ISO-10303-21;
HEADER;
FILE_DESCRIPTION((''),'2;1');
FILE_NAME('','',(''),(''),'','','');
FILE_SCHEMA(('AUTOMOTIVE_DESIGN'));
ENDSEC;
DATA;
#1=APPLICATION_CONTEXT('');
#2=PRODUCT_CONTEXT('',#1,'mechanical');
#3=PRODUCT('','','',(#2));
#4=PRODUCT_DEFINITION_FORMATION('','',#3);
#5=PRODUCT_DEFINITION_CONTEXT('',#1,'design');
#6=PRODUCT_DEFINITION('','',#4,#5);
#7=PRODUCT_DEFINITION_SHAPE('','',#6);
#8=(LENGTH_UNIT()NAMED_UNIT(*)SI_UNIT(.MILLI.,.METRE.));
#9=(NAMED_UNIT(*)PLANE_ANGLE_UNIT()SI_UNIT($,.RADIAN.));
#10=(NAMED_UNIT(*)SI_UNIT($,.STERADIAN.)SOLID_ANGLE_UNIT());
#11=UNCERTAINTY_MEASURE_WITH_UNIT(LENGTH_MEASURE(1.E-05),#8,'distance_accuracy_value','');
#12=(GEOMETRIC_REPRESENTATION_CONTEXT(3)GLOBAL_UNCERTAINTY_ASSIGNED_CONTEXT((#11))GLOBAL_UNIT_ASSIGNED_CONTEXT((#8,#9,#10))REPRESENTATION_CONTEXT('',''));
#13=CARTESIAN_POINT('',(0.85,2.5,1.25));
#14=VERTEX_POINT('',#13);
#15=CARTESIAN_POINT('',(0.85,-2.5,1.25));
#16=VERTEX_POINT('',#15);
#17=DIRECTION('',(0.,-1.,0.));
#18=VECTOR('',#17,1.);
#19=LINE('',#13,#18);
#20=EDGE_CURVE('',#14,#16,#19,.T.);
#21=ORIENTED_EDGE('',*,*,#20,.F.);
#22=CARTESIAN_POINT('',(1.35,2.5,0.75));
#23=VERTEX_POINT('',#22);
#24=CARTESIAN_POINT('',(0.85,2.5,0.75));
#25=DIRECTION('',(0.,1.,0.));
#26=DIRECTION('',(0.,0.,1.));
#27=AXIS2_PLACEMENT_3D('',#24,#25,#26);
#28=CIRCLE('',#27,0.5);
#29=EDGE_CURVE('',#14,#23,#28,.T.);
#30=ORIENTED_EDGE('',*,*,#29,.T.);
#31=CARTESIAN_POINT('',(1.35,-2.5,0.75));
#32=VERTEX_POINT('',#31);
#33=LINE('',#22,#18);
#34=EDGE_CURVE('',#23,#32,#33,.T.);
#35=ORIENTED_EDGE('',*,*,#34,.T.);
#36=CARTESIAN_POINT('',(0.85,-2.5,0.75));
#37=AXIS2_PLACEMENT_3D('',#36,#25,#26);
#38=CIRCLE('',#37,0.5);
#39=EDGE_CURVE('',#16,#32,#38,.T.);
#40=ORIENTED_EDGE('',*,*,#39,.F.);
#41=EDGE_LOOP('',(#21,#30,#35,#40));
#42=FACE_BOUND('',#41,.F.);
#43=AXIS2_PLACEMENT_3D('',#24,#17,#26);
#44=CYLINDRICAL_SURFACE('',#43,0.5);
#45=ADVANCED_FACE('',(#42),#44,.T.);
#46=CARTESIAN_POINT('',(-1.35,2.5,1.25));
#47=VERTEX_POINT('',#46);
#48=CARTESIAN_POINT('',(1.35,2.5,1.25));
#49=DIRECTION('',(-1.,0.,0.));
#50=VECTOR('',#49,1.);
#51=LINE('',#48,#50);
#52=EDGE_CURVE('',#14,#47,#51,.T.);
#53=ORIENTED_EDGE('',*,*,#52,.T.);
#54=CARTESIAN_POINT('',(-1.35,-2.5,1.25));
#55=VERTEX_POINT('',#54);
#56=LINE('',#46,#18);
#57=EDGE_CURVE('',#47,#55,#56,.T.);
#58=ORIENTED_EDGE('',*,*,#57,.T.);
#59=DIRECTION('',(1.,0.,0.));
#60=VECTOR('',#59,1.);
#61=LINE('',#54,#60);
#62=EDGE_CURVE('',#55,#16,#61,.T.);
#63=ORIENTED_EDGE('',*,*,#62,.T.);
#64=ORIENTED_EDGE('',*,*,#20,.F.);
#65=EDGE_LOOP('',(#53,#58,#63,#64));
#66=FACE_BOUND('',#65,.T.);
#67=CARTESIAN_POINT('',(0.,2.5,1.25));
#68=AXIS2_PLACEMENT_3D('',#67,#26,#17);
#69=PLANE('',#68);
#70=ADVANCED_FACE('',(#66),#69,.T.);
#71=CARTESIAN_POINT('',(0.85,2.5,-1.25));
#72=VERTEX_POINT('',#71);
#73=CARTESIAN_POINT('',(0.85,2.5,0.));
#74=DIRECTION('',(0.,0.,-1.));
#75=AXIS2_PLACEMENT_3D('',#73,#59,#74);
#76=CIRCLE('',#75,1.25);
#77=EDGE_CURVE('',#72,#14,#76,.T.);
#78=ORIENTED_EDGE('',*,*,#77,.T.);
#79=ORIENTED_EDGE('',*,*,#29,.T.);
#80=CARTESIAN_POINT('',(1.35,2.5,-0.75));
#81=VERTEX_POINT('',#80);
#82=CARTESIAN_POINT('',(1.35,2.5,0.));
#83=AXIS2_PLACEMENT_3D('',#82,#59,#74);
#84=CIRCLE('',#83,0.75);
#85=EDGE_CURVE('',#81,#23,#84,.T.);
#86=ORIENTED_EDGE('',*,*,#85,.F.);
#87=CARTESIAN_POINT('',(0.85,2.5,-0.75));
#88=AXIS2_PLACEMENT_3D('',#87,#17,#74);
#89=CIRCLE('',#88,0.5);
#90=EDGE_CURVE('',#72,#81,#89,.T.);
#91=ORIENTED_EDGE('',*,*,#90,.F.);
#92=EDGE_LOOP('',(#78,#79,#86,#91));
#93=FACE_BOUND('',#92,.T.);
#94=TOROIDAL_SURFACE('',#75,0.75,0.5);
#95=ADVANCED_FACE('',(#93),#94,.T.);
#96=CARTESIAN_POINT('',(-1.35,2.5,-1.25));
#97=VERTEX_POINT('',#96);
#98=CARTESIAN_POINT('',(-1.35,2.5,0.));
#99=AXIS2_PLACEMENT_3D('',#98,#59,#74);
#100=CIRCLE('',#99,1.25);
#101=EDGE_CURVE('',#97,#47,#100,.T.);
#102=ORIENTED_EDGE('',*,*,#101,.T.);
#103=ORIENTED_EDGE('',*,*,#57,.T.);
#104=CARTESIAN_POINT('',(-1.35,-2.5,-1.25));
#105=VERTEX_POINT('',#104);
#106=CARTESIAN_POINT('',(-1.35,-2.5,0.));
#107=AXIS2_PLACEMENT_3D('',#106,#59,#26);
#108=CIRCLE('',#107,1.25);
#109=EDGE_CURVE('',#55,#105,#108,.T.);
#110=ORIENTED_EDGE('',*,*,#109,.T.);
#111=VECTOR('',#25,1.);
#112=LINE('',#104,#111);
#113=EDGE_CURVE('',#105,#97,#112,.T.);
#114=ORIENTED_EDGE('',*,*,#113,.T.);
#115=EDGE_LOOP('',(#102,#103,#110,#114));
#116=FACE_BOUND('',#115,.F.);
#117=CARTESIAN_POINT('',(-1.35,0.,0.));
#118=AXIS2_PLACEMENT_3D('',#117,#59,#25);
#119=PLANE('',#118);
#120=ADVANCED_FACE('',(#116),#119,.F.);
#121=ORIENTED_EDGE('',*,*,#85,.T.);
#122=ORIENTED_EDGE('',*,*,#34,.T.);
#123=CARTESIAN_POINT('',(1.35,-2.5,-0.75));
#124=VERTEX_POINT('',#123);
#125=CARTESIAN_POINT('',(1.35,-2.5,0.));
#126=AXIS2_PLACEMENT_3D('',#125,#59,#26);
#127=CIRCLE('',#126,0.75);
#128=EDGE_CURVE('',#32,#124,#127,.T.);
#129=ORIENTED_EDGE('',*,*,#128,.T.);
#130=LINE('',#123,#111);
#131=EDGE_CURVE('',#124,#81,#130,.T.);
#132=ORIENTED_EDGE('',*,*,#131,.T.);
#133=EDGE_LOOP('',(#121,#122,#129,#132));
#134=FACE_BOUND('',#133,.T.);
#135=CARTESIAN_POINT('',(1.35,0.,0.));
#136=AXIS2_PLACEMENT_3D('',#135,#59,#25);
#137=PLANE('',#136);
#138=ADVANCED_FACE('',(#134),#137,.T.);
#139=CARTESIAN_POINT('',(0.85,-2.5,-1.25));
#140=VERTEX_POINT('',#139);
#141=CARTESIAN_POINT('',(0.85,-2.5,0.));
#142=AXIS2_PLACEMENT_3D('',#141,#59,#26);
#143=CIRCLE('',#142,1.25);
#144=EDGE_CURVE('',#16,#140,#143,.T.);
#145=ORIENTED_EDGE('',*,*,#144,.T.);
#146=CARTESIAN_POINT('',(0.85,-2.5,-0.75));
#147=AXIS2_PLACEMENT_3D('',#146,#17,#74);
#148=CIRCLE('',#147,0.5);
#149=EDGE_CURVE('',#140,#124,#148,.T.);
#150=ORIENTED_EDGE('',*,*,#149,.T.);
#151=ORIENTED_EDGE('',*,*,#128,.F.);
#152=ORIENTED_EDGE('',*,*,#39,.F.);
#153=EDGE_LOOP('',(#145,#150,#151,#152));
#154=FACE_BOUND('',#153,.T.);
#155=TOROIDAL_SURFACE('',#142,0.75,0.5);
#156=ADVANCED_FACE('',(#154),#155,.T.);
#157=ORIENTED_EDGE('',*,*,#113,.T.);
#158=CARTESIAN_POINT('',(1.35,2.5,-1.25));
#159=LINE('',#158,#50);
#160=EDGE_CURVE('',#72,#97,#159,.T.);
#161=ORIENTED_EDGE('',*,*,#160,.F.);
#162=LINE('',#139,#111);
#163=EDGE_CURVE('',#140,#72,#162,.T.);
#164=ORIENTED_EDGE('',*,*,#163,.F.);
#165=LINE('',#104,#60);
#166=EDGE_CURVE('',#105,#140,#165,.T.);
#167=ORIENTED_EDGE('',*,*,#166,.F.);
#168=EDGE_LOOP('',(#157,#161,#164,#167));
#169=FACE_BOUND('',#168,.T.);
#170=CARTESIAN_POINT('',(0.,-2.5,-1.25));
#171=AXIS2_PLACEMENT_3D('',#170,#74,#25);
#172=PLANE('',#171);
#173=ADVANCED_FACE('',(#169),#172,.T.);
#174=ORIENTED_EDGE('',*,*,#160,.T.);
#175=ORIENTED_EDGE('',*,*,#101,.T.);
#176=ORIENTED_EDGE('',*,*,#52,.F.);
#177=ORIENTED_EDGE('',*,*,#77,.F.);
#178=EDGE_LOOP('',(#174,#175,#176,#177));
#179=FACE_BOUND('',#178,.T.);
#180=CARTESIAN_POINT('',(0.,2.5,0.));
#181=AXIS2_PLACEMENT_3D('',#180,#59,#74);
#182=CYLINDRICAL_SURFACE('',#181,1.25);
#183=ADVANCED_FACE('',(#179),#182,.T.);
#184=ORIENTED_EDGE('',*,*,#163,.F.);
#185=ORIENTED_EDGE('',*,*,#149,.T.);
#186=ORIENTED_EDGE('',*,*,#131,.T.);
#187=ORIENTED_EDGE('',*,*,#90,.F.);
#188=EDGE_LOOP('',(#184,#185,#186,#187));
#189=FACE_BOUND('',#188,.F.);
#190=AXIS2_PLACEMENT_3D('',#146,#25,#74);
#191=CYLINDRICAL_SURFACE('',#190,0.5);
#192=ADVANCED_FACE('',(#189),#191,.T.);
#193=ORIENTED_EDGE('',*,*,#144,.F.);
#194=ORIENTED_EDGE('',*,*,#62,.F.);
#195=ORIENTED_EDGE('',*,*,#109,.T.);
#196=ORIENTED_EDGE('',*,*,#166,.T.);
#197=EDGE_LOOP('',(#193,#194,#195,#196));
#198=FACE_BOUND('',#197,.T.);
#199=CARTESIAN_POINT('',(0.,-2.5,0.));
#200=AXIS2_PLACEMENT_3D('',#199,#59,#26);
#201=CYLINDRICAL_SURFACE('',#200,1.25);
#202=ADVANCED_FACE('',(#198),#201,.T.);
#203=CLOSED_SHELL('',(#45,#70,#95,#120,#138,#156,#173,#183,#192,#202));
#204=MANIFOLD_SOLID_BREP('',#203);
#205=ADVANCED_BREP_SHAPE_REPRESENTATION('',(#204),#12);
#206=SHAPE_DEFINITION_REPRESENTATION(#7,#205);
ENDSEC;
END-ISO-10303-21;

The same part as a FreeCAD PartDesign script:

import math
import FreeCAD as App
import Part
import Sketcher
from FreeCAD import Vector
Q = App.Units.Quantity


def edges_at(feature, points):
    """Names of the edges that pass closest to the given points."""
    edges = feature.Shape.Edges
    near = lambda p: min(range(len(edges)), key=lambda i: edges[i].distToShape(Part.Vertex(*p))[0])
    return sorted({f"Edge{near(p) + 1}" for p in points})

doc = App.newDocument("Part")
body = doc.addObject("PartDesign::Body", "Body")

sketch1 = body.newObject("Sketcher::SketchObject", "Sketch")
sketch1.AttachmentSupport = (doc.getObject("YZ_Plane"), [""])
sketch1.MapMode = "FlatFace"
sketch1.addGeometry(Part.LineSegment(Vector(2.5, 1.2, 0), Vector(-2.5, 1.2, 0)), False)
sketch1.addGeometry(Part.ArcOfCircle(Part.Circle(Vector(-2.5, 0, 0), Vector(0, 0, 1), 1.2), math.radians(90), math.radians(270)), False)
sketch1.addGeometry(Part.LineSegment(Vector(-2.5, -1.2, 0), Vector(2.5, -1.2, 0)), False)
sketch1.addGeometry(Part.ArcOfCircle(Part.Circle(Vector(2.5, 0, 0), Vector(0, 0, 1), 1.2), math.radians(-90), math.radians(90)), False)
sketch1.addConstraint(Sketcher.Constraint("Tangent", 0, 2, 1, 1))
sketch1.addConstraint(Sketcher.Constraint("Tangent", 1, 2, 2, 1))
sketch1.addConstraint(Sketcher.Constraint("Tangent", 2, 2, 3, 1))
sketch1.addConstraint(Sketcher.Constraint("Tangent", 3, 2, 0, 1))
sketch1.addConstraint(Sketcher.Constraint("Horizontal", 0))
sketch1.addConstraint(Sketcher.Constraint("Horizontal", 2))
sketch1.addConstraint(Sketcher.Constraint("Symmetric", 1, 3, 3, 3, -1, 1))
sketch1.addConstraint(Sketcher.Constraint("DistanceX", 0, 2, 0, 1, Q("5 mm")))
sketch1.addConstraint(Sketcher.Constraint("Radius", 1, Q("1.25 mm")))
pad1 = body.newObject("PartDesign::Pad", "Pad")
pad1.Profile = sketch1
pad1.Length = 2.7
pad1.Midplane = True
doc.recompute()

fillet = body.newObject("PartDesign::Fillet", "Fillet")
fillet.Base = (pad1, edges_at(pad1, [
    (1.35, 0, 1.25),
    (1.35, -3.75, 0),
    (1.35, 0, -1.25),
    (1.35, 3.75, 0),
]))
fillet.Radius = 0.5

doc.recompute()
